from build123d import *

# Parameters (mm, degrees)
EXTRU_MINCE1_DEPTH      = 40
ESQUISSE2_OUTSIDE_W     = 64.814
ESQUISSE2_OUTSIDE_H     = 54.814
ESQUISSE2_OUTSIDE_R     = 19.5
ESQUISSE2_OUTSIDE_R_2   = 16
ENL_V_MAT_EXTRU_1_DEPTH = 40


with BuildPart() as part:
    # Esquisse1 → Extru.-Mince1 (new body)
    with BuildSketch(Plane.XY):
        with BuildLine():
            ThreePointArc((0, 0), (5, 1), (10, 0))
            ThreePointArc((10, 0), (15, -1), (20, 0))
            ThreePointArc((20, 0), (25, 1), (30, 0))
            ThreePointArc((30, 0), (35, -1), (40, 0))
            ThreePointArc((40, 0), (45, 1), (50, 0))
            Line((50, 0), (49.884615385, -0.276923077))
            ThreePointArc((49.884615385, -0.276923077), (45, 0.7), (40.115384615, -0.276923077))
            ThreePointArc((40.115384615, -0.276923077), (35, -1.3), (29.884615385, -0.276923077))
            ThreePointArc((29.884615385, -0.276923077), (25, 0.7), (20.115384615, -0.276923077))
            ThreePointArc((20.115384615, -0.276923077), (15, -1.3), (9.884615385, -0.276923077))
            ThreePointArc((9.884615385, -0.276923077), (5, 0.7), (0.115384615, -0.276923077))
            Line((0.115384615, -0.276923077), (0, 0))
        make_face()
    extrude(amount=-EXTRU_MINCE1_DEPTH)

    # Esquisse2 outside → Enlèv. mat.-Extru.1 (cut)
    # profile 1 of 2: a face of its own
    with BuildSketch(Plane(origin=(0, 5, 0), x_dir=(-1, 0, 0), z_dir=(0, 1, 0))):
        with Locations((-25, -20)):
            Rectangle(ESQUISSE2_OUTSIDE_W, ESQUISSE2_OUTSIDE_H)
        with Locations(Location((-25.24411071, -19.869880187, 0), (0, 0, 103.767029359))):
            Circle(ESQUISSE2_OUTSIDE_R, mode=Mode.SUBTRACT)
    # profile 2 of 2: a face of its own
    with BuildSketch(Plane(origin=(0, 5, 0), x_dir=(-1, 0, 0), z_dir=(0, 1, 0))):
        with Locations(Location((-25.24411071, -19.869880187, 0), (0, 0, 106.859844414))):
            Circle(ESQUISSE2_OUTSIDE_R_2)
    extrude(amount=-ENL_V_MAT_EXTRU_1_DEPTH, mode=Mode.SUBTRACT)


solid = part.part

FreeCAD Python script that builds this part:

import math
import FreeCAD as App
import Part
import Sketcher
from FreeCAD import Vector
Q = App.Units.Quantity

doc = App.newDocument("Part")
body = doc.addObject("PartDesign::Body", "Body")

# Sketch on XY plane
sketch1 = body.newObject("Sketcher::SketchObject", "Sketch")
sketch1.AttachmentSupport = (doc.getObject("XY_Plane"), [""])
sketch1.MapMode = "FlatFace"
sketch1.addGeometry([
    Part.ArcOfCircle(Part.Circle(Vector(5, -12, 0), Vector(0, 0, 1), 13), math.radians(67), math.radians(113)),  # 0
    Part.LineSegment(Vector(0, 0, 0), Vector(0.12, -0.28, 0)),  # 1
    Part.ArcOfCircle(Part.Circle(Vector(5, -12, 0), Vector(0, 0, 1), 12.7), math.radians(67), math.radians(113)),  # 2
    Part.ArcOfCircle(Part.Circle(Vector(15, 12, 0), Vector(0, 0, 1), 13.3), math.radians(-113), math.radians(-67)),  # 3
    Part.ArcOfCircle(Part.Circle(Vector(25, -12, 0), Vector(0, 0, 1), 12.7), math.radians(67), math.radians(113)),  # 4
    Part.ArcOfCircle(Part.Circle(Vector(35, 12, 0), Vector(0, 0, 1), 13.3), math.radians(-113), math.radians(-67)),  # 5
    Part.ArcOfCircle(Part.Circle(Vector(45, -12, 0), Vector(0, 0, 1), 12.7), math.radians(67), math.radians(113)),  # 6
    Part.LineSegment(Vector(49.88, -0.28, 0), Vector(50, 0, 0)),  # 7
    Part.ArcOfCircle(Part.Circle(Vector(45, -12, 0), Vector(0, 0, 1), 13), math.radians(67), math.radians(113)),  # 8
    Part.ArcOfCircle(Part.Circle(Vector(35, 12, 0), Vector(0, 0, 1), 13), math.radians(-113), math.radians(-67)),  # 9
    Part.ArcOfCircle(Part.Circle(Vector(25, -12, 0), Vector(0, 0, 1), 13), math.radians(67), math.radians(113)),  # 10
    Part.ArcOfCircle(Part.Circle(Vector(15, 12, 0), Vector(0, 0, 1), 13), math.radians(-113), math.radians(-67)),  # 11
], False)
sketch1.addConstraint([
    Sketcher.Constraint("Coincident", 0, 2, 1, 1),
    Sketcher.Constraint("Coincident", 1, 2, 2, 2),
    Sketcher.Constraint("Tangent", 2, 1, 3, 1),
    Sketcher.Constraint("Tangent", 3, 2, 4, 2),
    Sketcher.Constraint("Tangent", 4, 1, 5, 1),
    Sketcher.Constraint("Tangent", 5, 2, 6, 2),
    Sketcher.Constraint("Coincident", 6, 1, 7, 1),
    Sketcher.Constraint("Coincident", 7, 2, 8, 1),
    Sketcher.Constraint("Tangent", 8, 2, 9, 2),
    Sketcher.Constraint("Tangent", 9, 1, 10, 1),
    Sketcher.Constraint("Tangent", 10, 2, 11, 2),
    Sketcher.Constraint("Tangent", 11, 1, 0, 1),
    Sketcher.Constraint("Coincident", 0, 2, -1, 1),
    Sketcher.Constraint("Coincident", 2, 3, 0, 3),
    Sketcher.Constraint("Coincident", 8, 3, 6, 3),
    Sketcher.Constraint("Coincident", 9, 3, 5, 3),
    Sketcher.Constraint("Coincident", 10, 3, 4, 3),
    Sketcher.Constraint("Coincident", 11, 3, 3, 3),
    Sketcher.Constraint("Equal", 2, 4),
    Sketcher.Constraint("Equal", 3, 5),
    Sketcher.Constraint("Equal", 4, 6),
    Sketcher.Constraint("Equal", 8, 9),
    Sketcher.Constraint("PointOnObject", 7, 2, -1),
    Sketcher.Constraint("PointOnObject", 8, 2, -1),
    Sketcher.Constraint("PointOnObject", 9, 1, -1),
    Sketcher.Constraint("PointOnObject", 10, 2, -1),
    Sketcher.Constraint("PointOnObject", 11, 1, -1),
    Sketcher.Constraint("Horizontal", 1, 2, 2, 1),
    Sketcher.Constraint("Horizontal", 5, 2, 6, 1),
    Sketcher.Constraint("Radius", 0, Q("13 mm")),
    Sketcher.Constraint("Radius", 2, Q("12.7 mm")),
    Sketcher.Constraint("DistanceX", -1, 1, 0, 3, Q("5 mm")),
])
pad1 = body.newObject("PartDesign::Pad", "Pad")
pad1.Profile = sketch1
pad1.Length = 40
pad1.Reversed = True

# Sketch on XZ plane
sketch2 = body.newObject("Sketcher::SketchObject", "Sketch001")
sketch2.AttachmentSupport = (doc.getObject("XZ_Plane"), [""])
sketch2.MapMode = "FlatFace"
sketch2.AttachmentOffset = App.Placement(Vector(0, 0, -5), App.Rotation())
sketch2.addGeometry([
    Part.LineSegment(Vector(57, 7, 0), Vector(57, -47, 0)),  # 0
    Part.LineSegment(Vector(57, -47, 0), Vector(-7, -47, 0)),  # 1
    Part.LineSegment(Vector(-7, -47, 0), Vector(-7, 7, 0)),  # 2
    Part.LineSegment(Vector(-7, 7, 0), Vector(57, 7, 0)),  # 3
    Part.Circle(Vector(25, -20, 0), Vector(0, 0, 1), 20),  # 4
    Part.Circle(Vector(25, -20, 0), Vector(0, 0, 1), 16),  # 5
], False)
sketch2.addConstraint([
    Sketcher.Constraint("Coincident", 0, 2, 1, 1),
    Sketcher.Constraint("Coincident", 1, 2, 2, 1),
    Sketcher.Constraint("Coincident", 2, 2, 3, 1),
    Sketcher.Constraint("Coincident", 3, 2, 0, 1),
    Sketcher.Constraint("Vertical", 0),
    Sketcher.Constraint("Horizontal", 1),
    Sketcher.Constraint("Vertical", 2),
    Sketcher.Constraint("Horizontal", 3),
    Sketcher.Constraint("Coincident", 5, 3, 4, 3),
    Sketcher.Constraint("Diameter", 4, Q("39 mm")),
    Sketcher.Constraint("Diameter", 5, Q("32 mm")),
    Sketcher.Constraint("DistanceX", 1, 2, 1, 1, Q("64.814 mm")),
    Sketcher.Constraint("DistanceY", 0, 2, 0, 1, Q("54.814 mm")),
    Sketcher.Constraint("DistanceX", -1, 1, 0, 2, Q("57.407 mm")),
    Sketcher.Constraint("DistanceY", 0, 2, -1, 1, Q("47.407 mm")),
    Sketcher.Constraint("DistanceX", -1, 1, 4, 3, Q("25.244111 mm")),
    Sketcher.Constraint("DistanceY", 4, 3, -1, 1, Q("19.86988 mm")),
])
pocket1 = body.newObject("PartDesign::Pocket", "Pocket")
pocket1.Profile = sketch2
pocket1.Length = 40
pocket1.Reversed = True

doc.recompute()
